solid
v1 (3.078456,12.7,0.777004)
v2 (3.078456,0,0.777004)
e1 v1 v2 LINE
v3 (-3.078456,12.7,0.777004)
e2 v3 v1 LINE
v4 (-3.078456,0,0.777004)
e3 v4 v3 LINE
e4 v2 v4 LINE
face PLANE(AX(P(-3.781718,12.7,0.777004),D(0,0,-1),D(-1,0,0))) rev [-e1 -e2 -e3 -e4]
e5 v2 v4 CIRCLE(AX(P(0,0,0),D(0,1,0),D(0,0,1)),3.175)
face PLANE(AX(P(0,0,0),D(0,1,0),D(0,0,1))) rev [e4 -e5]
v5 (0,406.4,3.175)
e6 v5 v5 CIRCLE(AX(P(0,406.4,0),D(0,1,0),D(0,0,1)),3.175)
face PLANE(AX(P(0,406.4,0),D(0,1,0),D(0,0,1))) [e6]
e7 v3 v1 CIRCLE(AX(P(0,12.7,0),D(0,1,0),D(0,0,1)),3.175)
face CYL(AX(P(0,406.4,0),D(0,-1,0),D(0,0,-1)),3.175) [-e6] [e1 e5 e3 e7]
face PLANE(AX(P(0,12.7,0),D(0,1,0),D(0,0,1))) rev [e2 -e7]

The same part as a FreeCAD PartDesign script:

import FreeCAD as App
import Part
import Sketcher
Q = App.Units.Quantity


def add_polygon(sketch, points):
    """Adds a closed chain of lines whose ends are joined by coincident constraints."""
    first, n = sketch.GeometryCount, len(points)
    for a, b in zip(points, points[1:] + points[:1]):
        sketch.addGeometry(Part.LineSegment(App.Vector(*a, 0), App.Vector(*b, 0)), False)
    for i in range(n):
        sketch.addConstraint(Sketcher.Constraint("Coincident", first + i, 2, first + (i + 1) % n, 1))

doc = App.newDocument("Part")
body = doc.addObject("PartDesign::Body", "Body")

sketch1 = doc.addObject("Sketcher::SketchObject", "Sketch")
body.addObject(sketch1)
sketch1.AttachmentSupport = (doc.XZ_Plane, [""])
sketch1.MapMode = "FlatFace"
sketch1.addGeometry(Part.Circle(App.Vector(0, 0, 0), App.Vector(0, 0, 1), 3.175), False)
sketch1.addConstraint([
    Sketcher.Constraint("Coincident", 0, 3, -1, 1),
    Sketcher.Constraint("Diameter", 0, Q("0.25 in")),
])
pad1 = doc.addObject("PartDesign::Pad", "Pad")
body.addObject(pad1)
pad1.Profile = sketch1
pad1.Length = Q("16 in")
pad1.Reversed = True

sketch2 = doc.addObject("Sketcher::SketchObject", "Sketch001")
body.addObject(sketch2)
sketch2.AttachmentSupport = (doc.XZ_Plane, [""])
sketch2.MapMode = "FlatFace"
add_polygon(sketch2, [(-3.781718, 3.373005), (-3.781718, 0.777004), (3.808666, 0.777004), (3.808666, 3.373005)])
sketch2.addConstraint([
    Sketcher.Constraint("Vertical", 0),
    Sketcher.Constraint("Horizontal", 1),
    Sketcher.Constraint("Vertical", 2),
    Sketcher.Constraint("Horizontal", 3),
    Sketcher.Constraint("DistanceY", 0, 2, 0, 1, 2.596001),
    Sketcher.Constraint("DistanceX", 1, 1, 1, 2, 7.590384),
    Sketcher.Constraint("DistanceX", 0, 2, -1, 1, 3.781718),
    Sketcher.Constraint("DistanceY", -1, 1, 0, 2, 0.777004),
])
pocket1 = doc.addObject("PartDesign::Pocket", "Pocket")
body.addObject(pocket1)
pocket1.Profile = sketch2
pocket1.Length = Q("0.5 in")

doc.recompute()
